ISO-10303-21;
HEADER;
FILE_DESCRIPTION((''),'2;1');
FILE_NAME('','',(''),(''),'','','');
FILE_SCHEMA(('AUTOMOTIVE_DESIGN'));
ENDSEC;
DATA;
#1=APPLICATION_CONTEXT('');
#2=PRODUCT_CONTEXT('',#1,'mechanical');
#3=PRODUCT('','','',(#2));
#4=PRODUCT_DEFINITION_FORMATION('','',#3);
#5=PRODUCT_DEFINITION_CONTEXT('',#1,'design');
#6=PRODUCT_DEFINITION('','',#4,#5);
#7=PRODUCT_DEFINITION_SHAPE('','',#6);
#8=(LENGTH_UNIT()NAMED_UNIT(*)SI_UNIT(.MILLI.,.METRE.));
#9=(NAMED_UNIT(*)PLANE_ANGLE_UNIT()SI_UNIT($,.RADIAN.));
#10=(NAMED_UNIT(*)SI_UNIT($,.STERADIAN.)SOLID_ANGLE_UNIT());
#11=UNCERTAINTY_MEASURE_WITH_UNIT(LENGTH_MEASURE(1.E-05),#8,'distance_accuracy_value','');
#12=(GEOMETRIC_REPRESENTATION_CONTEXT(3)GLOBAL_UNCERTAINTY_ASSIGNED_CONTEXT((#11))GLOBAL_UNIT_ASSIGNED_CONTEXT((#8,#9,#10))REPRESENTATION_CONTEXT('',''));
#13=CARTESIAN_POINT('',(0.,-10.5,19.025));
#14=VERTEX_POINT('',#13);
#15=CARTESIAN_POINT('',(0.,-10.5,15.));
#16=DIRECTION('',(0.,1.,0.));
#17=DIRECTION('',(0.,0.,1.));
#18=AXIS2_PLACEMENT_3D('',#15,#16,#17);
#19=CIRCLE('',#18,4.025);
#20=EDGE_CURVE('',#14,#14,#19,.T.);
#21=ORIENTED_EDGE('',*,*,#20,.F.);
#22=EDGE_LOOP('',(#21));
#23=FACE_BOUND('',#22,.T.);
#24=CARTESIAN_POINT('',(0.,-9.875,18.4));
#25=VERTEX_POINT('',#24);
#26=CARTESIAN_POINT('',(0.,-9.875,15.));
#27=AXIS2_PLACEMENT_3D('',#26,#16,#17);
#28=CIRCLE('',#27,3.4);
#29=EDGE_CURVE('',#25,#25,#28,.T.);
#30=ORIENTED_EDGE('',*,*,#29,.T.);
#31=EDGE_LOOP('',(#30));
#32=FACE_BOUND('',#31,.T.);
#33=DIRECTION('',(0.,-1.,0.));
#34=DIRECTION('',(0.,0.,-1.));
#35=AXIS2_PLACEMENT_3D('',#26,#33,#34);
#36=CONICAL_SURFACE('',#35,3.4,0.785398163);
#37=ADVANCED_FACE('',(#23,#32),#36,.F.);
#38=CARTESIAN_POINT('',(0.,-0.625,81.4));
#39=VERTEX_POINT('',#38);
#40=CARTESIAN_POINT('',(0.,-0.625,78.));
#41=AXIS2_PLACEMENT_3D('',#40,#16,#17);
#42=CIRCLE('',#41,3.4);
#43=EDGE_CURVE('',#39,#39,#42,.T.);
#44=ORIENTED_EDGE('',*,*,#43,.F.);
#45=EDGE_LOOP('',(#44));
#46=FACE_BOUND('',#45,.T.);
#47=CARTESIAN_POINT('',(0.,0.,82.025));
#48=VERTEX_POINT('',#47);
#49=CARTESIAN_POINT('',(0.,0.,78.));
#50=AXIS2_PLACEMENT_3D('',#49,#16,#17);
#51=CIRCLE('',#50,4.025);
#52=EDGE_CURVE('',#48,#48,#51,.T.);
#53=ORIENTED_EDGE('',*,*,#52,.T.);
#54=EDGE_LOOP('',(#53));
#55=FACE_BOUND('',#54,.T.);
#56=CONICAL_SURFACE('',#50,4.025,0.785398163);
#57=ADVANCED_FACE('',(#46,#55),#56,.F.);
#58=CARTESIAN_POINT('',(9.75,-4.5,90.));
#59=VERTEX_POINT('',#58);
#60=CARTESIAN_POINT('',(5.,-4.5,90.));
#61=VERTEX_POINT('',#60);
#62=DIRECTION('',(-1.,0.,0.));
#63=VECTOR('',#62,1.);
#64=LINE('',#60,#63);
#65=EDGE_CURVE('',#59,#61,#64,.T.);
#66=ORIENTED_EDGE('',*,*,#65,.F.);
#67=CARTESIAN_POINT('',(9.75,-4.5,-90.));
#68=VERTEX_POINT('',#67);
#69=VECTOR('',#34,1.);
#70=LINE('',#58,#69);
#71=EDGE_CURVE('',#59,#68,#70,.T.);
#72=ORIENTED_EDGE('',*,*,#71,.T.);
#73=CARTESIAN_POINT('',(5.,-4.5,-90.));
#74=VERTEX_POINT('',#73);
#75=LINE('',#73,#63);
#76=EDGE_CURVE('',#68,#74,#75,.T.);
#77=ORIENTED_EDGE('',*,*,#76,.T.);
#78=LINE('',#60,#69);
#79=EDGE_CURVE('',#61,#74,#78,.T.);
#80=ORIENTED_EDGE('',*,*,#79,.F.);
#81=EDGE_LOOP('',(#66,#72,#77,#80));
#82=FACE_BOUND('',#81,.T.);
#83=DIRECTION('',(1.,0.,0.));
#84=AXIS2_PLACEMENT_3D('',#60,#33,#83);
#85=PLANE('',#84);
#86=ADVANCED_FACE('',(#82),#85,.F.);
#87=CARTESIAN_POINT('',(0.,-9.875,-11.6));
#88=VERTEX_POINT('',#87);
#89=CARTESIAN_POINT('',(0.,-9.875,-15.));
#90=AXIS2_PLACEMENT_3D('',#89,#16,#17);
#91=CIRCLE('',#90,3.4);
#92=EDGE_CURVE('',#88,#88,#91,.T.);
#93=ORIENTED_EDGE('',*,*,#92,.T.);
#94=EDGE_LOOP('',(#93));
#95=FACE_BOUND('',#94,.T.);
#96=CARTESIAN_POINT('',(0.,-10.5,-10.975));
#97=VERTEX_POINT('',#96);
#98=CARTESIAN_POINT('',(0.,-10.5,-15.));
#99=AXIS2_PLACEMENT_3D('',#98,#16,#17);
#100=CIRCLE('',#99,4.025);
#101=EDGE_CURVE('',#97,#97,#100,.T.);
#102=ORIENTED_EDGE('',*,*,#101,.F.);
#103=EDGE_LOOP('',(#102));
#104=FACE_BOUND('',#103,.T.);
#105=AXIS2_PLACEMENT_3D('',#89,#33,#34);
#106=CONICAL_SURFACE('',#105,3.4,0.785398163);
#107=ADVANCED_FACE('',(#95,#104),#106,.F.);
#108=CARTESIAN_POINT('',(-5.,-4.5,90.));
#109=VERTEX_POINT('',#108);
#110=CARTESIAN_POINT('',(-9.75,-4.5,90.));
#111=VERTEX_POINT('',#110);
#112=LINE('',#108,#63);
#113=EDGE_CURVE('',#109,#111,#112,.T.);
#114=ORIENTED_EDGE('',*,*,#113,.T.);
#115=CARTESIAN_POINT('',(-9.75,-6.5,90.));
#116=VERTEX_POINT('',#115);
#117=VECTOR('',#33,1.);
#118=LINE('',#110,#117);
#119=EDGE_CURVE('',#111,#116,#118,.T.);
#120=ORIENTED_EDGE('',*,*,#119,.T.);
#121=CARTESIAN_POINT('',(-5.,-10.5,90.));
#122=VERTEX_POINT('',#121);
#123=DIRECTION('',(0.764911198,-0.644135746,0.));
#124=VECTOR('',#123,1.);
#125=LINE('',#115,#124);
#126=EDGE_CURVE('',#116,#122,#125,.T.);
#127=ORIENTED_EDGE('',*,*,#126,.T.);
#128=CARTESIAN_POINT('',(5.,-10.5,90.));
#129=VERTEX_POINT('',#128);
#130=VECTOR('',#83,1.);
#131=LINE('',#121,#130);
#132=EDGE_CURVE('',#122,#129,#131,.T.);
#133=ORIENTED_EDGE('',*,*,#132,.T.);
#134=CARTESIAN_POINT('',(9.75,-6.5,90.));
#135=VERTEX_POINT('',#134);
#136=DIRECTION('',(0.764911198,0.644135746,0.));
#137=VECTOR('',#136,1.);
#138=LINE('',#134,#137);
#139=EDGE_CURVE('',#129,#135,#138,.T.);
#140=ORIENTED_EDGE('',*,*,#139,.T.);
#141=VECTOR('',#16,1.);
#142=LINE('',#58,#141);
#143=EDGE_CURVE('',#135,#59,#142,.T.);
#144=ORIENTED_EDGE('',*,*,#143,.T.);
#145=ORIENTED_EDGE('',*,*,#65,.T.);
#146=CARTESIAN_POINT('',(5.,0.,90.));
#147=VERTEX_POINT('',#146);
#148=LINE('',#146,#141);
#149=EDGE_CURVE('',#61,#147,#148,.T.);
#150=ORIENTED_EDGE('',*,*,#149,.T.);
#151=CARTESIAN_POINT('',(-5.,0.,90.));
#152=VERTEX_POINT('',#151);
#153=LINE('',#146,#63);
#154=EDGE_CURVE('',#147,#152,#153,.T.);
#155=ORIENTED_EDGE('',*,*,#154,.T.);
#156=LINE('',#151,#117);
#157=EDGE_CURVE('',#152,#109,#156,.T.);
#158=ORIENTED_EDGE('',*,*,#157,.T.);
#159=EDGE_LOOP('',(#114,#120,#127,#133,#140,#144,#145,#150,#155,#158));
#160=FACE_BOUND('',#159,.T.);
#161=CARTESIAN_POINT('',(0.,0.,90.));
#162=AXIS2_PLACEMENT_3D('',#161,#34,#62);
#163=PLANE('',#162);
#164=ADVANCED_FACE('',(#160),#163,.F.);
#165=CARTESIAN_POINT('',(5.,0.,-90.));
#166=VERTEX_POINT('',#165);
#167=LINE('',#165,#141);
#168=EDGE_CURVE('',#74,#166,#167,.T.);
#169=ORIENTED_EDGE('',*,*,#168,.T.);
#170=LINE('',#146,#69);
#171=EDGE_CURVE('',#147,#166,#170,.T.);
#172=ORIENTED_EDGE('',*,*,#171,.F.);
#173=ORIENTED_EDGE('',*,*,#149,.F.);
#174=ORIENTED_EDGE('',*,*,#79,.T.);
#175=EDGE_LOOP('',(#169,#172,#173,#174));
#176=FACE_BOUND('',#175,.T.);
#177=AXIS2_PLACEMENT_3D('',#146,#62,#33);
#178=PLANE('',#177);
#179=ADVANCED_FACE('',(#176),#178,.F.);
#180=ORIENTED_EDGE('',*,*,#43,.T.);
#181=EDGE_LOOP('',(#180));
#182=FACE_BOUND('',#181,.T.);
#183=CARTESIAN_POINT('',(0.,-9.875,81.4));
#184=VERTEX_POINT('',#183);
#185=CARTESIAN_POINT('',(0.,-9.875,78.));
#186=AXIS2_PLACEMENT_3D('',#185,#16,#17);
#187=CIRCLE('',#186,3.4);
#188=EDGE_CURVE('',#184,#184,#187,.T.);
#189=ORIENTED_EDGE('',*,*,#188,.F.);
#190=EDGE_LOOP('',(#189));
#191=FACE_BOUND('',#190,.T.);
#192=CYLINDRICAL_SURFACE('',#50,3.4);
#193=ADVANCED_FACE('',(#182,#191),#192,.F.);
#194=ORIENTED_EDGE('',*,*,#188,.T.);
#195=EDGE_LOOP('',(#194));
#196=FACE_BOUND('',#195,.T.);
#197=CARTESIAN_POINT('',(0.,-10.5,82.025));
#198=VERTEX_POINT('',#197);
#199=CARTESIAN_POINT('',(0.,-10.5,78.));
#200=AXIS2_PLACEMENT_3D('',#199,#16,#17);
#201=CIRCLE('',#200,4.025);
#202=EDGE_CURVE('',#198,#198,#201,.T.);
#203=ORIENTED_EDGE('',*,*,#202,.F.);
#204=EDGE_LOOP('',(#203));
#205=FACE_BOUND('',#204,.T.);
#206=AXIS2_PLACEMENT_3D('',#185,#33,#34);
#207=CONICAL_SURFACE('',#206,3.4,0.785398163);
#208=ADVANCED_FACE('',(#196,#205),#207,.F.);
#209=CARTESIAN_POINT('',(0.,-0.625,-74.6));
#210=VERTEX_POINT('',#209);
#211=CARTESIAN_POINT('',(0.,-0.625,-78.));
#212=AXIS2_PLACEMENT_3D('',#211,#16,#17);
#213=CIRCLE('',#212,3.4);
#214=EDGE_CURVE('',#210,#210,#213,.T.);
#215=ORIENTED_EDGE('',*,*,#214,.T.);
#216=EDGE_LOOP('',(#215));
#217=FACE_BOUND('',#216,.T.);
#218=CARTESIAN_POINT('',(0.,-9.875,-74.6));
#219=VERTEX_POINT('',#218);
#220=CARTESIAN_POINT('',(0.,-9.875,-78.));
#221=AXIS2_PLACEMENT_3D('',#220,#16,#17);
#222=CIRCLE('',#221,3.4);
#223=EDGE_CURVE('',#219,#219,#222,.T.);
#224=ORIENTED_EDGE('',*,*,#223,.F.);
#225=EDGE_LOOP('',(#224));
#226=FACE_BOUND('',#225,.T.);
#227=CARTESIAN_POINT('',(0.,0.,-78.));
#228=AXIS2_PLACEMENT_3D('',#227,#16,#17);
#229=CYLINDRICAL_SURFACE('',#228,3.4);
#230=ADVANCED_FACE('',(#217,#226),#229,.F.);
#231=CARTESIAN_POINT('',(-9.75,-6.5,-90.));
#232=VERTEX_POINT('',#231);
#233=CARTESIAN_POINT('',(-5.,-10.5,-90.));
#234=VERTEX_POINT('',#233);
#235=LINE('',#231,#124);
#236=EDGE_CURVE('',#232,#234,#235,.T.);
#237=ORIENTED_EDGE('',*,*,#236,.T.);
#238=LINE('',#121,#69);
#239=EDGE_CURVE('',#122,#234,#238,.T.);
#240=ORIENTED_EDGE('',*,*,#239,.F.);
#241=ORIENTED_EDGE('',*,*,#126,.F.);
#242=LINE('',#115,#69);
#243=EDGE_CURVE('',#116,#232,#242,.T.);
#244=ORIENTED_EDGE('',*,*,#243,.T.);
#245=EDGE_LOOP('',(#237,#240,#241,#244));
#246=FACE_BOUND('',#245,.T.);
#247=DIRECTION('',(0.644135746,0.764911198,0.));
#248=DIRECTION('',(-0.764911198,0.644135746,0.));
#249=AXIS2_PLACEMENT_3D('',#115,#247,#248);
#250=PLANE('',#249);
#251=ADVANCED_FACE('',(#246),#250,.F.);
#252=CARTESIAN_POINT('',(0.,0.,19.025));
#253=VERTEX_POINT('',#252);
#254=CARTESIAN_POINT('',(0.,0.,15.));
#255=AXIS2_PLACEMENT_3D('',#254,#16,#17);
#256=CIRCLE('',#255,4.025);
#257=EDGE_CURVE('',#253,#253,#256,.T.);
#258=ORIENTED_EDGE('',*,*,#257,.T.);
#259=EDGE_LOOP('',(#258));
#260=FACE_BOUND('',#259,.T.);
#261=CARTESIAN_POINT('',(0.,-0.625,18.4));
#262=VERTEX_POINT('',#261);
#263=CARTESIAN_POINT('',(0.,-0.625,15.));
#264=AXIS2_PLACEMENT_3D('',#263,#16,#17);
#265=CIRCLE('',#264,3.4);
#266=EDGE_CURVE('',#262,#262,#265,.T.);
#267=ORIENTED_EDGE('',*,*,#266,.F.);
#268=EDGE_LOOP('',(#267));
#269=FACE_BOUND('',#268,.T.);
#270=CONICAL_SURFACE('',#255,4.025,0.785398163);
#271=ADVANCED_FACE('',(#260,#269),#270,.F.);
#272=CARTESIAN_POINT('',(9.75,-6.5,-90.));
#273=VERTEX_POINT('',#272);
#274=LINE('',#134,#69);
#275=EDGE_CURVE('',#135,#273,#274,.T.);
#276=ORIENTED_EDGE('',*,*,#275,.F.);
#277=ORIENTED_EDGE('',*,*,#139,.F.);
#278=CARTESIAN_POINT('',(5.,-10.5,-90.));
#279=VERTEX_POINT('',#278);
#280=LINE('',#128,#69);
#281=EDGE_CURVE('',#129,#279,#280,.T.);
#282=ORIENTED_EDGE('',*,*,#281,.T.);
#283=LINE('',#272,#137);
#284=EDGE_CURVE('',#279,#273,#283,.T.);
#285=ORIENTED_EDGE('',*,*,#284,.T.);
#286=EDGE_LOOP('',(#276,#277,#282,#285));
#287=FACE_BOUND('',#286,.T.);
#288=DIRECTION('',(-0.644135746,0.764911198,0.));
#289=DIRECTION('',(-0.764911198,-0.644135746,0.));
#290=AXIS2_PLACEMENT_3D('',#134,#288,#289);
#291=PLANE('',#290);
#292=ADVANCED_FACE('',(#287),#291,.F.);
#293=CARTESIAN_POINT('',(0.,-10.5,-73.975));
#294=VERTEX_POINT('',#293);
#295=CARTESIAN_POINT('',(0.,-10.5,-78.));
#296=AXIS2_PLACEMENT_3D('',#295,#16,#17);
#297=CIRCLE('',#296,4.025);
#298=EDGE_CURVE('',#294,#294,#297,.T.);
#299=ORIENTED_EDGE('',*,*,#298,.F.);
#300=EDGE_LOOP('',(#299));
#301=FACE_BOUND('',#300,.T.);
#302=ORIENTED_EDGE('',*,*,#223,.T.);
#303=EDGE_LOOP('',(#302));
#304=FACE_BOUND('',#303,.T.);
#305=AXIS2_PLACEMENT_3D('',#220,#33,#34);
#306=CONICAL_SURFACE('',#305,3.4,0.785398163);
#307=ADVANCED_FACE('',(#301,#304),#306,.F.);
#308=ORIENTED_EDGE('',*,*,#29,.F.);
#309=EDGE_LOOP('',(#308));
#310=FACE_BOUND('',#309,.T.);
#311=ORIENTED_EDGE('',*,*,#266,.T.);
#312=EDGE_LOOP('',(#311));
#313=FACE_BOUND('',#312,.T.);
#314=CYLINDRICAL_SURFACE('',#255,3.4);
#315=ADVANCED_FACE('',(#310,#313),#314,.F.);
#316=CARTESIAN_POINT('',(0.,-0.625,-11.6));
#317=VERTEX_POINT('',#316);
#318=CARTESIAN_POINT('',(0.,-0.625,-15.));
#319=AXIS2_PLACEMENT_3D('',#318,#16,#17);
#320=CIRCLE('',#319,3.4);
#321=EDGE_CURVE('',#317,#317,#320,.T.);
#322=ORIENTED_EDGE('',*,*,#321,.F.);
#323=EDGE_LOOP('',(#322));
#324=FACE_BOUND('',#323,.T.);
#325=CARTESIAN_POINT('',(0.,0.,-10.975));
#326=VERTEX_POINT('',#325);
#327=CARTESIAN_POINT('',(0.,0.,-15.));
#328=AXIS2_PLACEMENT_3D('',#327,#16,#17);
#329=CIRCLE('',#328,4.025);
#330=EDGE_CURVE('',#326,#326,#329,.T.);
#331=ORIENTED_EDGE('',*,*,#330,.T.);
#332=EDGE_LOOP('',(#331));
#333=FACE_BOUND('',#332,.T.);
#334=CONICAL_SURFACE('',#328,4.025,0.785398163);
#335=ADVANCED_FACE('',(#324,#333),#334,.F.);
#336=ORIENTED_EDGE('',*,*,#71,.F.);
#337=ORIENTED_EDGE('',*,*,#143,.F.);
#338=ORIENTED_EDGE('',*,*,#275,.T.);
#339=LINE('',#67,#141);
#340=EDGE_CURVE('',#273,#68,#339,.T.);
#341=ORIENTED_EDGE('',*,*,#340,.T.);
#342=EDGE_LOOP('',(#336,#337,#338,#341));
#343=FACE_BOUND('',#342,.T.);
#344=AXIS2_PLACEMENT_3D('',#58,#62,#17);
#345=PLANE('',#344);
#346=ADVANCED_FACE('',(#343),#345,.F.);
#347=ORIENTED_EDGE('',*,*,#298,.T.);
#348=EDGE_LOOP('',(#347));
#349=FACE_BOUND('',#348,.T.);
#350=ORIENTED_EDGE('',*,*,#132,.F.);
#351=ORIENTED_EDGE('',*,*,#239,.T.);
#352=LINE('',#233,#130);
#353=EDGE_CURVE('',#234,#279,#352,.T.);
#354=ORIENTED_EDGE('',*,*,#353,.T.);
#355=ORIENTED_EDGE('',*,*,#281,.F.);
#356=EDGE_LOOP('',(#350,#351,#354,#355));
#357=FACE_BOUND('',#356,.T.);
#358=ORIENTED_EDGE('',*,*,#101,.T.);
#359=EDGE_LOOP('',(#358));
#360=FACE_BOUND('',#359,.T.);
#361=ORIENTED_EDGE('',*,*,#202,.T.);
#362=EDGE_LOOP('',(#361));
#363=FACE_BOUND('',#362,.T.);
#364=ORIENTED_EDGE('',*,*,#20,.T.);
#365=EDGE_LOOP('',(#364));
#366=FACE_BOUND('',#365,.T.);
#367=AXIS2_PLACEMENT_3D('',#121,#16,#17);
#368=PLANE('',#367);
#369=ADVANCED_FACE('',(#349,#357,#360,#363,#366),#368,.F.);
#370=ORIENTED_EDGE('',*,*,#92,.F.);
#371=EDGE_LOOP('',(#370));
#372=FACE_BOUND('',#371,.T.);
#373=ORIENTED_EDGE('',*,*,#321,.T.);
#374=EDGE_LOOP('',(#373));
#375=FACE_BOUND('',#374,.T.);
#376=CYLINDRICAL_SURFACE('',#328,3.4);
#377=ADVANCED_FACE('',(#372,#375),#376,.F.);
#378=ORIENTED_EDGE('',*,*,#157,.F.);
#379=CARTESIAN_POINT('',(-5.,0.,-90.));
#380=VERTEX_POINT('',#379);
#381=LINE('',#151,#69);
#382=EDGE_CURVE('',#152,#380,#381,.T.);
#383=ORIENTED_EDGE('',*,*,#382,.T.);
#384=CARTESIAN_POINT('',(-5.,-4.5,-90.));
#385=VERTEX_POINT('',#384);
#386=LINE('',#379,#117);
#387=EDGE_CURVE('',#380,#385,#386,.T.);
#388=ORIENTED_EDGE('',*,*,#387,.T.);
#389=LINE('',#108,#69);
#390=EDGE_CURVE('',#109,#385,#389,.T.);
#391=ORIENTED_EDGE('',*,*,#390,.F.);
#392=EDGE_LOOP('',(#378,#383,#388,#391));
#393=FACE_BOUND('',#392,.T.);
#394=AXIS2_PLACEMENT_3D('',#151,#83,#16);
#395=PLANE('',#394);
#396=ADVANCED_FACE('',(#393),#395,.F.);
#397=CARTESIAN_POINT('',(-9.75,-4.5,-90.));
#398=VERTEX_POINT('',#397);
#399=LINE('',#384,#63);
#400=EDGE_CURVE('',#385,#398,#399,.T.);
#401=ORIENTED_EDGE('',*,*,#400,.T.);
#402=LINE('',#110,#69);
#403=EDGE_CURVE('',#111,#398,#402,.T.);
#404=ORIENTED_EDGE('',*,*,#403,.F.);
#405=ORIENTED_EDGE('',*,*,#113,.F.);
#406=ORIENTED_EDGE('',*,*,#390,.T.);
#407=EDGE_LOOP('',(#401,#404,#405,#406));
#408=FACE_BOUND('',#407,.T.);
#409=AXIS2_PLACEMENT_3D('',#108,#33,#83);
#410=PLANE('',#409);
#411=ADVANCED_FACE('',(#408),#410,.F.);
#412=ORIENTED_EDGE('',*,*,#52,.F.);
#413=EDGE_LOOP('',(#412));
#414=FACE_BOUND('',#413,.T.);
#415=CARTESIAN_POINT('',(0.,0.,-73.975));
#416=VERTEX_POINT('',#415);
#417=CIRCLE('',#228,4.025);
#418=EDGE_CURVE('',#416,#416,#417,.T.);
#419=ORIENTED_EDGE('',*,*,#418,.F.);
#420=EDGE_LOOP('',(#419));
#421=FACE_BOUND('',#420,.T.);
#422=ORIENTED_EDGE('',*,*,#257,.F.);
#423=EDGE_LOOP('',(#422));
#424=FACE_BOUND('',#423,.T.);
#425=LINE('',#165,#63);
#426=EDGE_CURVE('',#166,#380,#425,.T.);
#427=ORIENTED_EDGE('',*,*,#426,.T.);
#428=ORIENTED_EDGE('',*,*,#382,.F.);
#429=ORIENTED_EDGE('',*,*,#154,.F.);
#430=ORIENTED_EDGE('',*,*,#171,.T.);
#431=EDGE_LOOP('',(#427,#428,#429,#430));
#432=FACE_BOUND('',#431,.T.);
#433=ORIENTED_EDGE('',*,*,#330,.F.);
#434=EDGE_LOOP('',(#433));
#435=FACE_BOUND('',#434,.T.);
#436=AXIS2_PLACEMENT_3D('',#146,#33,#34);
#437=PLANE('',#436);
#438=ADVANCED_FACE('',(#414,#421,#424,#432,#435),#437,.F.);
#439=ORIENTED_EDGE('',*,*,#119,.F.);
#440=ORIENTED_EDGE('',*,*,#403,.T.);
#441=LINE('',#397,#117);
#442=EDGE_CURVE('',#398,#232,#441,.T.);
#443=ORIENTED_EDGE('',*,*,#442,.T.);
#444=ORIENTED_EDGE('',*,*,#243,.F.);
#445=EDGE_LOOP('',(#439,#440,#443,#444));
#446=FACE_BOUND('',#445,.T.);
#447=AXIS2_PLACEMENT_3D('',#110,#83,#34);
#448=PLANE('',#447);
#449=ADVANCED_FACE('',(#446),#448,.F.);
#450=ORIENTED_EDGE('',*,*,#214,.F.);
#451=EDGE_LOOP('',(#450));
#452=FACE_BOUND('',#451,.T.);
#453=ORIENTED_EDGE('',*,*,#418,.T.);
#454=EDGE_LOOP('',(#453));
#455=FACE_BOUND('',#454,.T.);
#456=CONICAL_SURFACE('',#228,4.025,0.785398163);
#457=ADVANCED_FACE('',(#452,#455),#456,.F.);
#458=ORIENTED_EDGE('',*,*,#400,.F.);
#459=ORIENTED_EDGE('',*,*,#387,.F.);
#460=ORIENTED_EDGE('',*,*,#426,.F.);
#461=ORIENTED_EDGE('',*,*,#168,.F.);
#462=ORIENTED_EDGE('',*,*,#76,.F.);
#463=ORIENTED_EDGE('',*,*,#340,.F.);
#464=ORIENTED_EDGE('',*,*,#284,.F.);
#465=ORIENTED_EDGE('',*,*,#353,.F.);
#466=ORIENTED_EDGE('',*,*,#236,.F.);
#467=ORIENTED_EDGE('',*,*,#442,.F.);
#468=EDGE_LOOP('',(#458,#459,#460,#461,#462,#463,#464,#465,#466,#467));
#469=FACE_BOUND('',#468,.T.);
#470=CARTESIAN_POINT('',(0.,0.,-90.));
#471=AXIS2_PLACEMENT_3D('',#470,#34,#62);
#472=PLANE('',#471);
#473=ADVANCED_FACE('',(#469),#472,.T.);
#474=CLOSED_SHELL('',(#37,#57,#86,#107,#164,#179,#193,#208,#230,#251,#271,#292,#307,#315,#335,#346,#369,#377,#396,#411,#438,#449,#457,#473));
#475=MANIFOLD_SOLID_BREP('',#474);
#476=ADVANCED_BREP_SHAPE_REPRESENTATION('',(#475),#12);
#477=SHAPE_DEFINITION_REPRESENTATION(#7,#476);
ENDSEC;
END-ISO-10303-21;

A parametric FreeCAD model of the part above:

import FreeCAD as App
import Part
import Sketcher

V = App.Vector
Q = App.Units.Quantity


def add_polygon(sketch, points):
    """Adds a closed chain of lines whose ends are joined by coincident constraints."""
    first, n = sketch.GeometryCount, len(points)
    for a, b in zip(points, points[1:] + points[:1]):
        sketch.addGeometry(Part.LineSegment(App.Vector(*a, 0), App.Vector(*b, 0)), False)
    for i in range(n):
        sketch.addConstraint(Sketcher.Constraint("Coincident", first + i, 2, first + (i + 1) % n, 1))

doc = App.newDocument("Part")
body = doc.addObject("PartDesign::Body", "Body")

# Sketch on XY plane
sketch1 = body.newObject("Sketcher::SketchObject", "Sketch")
sketch1.AttachmentSupport = (doc.getObject("XY_Plane"), [""])
sketch1.MapMode = "FlatFace"
add_polygon(sketch1, [(5, 0), (-5, 0), (-5, -4.5), (-9.75, -4.5), (-9.75, -6.5), (-5, -10.5), (5, -10.5), (9.75, -6.5), (9.75, -4.5), (5, -4.5)])  # lines 0-9
sketch1.addConstraint(Sketcher.Constraint("Horizontal", 0))
sketch1.addConstraint(Sketcher.Constraint("Vertical", 1))
sketch1.addConstraint(Sketcher.Constraint("Horizontal", 2))
sketch1.addConstraint(Sketcher.Constraint("Vertical", 3))
sketch1.addConstraint(Sketcher.Constraint("Horizontal", 5))
sketch1.addConstraint(Sketcher.Constraint("Vertical", 7))
sketch1.addConstraint(Sketcher.Constraint("Horizontal", 8))
sketch1.addConstraint(Sketcher.Constraint("Vertical", 9))
sketch1.addConstraint(Sketcher.Constraint("Symmetric", 0, 2, 9, 2, -1, 1))
sketch1.addConstraint(Sketcher.Constraint("Symmetric", 3, 2, 6, 2, -2))
sketch1.addConstraint(Sketcher.Constraint("Horizontal", 2, 2, 7, 2))
sketch1.addConstraint(Sketcher.Constraint("Vertical", 1, 2, 4, 2))
sketch1.addConstraint(Sketcher.Constraint("Vertical", 5, 2, 8, 2))
sketch1.addConstraint(Sketcher.Constraint("DistanceX", 0, 2, 0, 1, Q("10 mm")))
sketch1.addConstraint(Sketcher.Constraint("DistanceY", 3, 2, 3, 1, Q("2 mm")))
sketch1.addConstraint(Sketcher.Constraint("DistanceY", 1, 2, 1, 1, Q("4.5 mm")))
sketch1.addConstraint(Sketcher.Constraint("DistanceY", 4, 2, 1, 2, Q("6 mm")))
sketch1.addConstraint(Sketcher.Constraint("DistanceX", 2, 2, 2, 1, Q("4.75 mm")))
pad1 = body.newObject("PartDesign::Pad", "Pad")
pad1.Profile = sketch1
pad1.Length = 180
pad1.Midplane = True

# Sketch on YZ plane
sketch2 = body.newObject("Sketcher::SketchObject", "Sketch001")
sketch2.AttachmentSupport = (doc.getObject("YZ_Plane"), [""])
sketch2.MapMode = "FlatFace"
add_polygon(sketch2, [(-10.5, -78), (0, -78), (0, -73.975), (-0.625, -74.6), (-9.875, -74.6), (-10.5, -73.975)])  # lines 0-5
sketch2.addGeometry(Part.LineSegment(V(0, -78, 0), V(-10.5, -78, 0)), True)  # axis
sketch2.addConstraint(Sketcher.Constraint("Horizontal", 0))
sketch2.addConstraint(Sketcher.Constraint("Vertical", 1))
sketch2.addConstraint(Sketcher.Constraint("Horizontal", 3))
sketch2.addConstraint(Sketcher.Constraint("Vertical", 5))
sketch2.addConstraint(Sketcher.Constraint("Horizontal", 6))
sketch2.addConstraint(Sketcher.Constraint("Coincident", 6, 1, 0, 2))
sketch2.addConstraint(Sketcher.Constraint("PointOnObject", 0, 2, -2))
sketch2.addConstraint(Sketcher.Constraint("Perpendicular", 2, 4))
sketch2.addConstraint(Sketcher.Constraint("Horizontal", 1, 2, 4, 2))
sketch2.addConstraint(Sketcher.Constraint("Vertical", 4, 2, 6, 2))
sketch2.addConstraint(Sketcher.Constraint("Equal", 2, 4))
sketch2.addConstraint(Sketcher.Constraint("DistanceX", 0, 1, 0, 2, Q("10.5 mm")))
sketch2.addConstraint(Sketcher.Constraint("DistanceY", 0, 2, -1, 1, Q("78 mm")))
sketch2.addConstraint(Sketcher.Constraint("DistanceX", 3, 2, 3, 1, Q("9.25 mm")))
sketch2.addConstraint(Sketcher.Constraint("DistanceY", 2, 2, -1, 1, Q("74.6 mm")))
groove = body.newObject("PartDesign::Groove", "Groove")
groove.Profile = sketch2
groove.ReferenceAxis = (sketch2, ["Axis0"])
groove.Angle = 360
doc.recompute()

linearpattern = body.newObject("PartDesign::LinearPattern", "LinearPattern")
linearpattern.Originals = [groove]
linearpattern.Direction = (doc.getObject("Z_Axis"), [""])
linearpattern.Mode = "offset"
linearpattern.Offset = 63
linearpattern.Occurrences = 2
body.Tip = linearpattern
doc.recompute()

linearpattern2 = body.newObject("PartDesign::LinearPattern", "LinearPattern001")
linearpattern2.Originals = [groove]
linearpattern2.Direction = (doc.getObject("Z_Axis"), [""])
linearpattern2.Mode = "offset"
linearpattern2.Offset = 93
linearpattern2.Occurrences = 2
body.Tip = linearpattern2
doc.recompute()

linearpattern3 = body.newObject("PartDesign::LinearPattern", "LinearPattern002")
linearpattern3.Originals = [groove]
linearpattern3.Direction = (doc.getObject("Z_Axis"), [""])
linearpattern3.Mode = "offset"
linearpattern3.Offset = 156
linearpattern3.Occurrences = 2
body.Tip = linearpattern3

doc.recompute()
